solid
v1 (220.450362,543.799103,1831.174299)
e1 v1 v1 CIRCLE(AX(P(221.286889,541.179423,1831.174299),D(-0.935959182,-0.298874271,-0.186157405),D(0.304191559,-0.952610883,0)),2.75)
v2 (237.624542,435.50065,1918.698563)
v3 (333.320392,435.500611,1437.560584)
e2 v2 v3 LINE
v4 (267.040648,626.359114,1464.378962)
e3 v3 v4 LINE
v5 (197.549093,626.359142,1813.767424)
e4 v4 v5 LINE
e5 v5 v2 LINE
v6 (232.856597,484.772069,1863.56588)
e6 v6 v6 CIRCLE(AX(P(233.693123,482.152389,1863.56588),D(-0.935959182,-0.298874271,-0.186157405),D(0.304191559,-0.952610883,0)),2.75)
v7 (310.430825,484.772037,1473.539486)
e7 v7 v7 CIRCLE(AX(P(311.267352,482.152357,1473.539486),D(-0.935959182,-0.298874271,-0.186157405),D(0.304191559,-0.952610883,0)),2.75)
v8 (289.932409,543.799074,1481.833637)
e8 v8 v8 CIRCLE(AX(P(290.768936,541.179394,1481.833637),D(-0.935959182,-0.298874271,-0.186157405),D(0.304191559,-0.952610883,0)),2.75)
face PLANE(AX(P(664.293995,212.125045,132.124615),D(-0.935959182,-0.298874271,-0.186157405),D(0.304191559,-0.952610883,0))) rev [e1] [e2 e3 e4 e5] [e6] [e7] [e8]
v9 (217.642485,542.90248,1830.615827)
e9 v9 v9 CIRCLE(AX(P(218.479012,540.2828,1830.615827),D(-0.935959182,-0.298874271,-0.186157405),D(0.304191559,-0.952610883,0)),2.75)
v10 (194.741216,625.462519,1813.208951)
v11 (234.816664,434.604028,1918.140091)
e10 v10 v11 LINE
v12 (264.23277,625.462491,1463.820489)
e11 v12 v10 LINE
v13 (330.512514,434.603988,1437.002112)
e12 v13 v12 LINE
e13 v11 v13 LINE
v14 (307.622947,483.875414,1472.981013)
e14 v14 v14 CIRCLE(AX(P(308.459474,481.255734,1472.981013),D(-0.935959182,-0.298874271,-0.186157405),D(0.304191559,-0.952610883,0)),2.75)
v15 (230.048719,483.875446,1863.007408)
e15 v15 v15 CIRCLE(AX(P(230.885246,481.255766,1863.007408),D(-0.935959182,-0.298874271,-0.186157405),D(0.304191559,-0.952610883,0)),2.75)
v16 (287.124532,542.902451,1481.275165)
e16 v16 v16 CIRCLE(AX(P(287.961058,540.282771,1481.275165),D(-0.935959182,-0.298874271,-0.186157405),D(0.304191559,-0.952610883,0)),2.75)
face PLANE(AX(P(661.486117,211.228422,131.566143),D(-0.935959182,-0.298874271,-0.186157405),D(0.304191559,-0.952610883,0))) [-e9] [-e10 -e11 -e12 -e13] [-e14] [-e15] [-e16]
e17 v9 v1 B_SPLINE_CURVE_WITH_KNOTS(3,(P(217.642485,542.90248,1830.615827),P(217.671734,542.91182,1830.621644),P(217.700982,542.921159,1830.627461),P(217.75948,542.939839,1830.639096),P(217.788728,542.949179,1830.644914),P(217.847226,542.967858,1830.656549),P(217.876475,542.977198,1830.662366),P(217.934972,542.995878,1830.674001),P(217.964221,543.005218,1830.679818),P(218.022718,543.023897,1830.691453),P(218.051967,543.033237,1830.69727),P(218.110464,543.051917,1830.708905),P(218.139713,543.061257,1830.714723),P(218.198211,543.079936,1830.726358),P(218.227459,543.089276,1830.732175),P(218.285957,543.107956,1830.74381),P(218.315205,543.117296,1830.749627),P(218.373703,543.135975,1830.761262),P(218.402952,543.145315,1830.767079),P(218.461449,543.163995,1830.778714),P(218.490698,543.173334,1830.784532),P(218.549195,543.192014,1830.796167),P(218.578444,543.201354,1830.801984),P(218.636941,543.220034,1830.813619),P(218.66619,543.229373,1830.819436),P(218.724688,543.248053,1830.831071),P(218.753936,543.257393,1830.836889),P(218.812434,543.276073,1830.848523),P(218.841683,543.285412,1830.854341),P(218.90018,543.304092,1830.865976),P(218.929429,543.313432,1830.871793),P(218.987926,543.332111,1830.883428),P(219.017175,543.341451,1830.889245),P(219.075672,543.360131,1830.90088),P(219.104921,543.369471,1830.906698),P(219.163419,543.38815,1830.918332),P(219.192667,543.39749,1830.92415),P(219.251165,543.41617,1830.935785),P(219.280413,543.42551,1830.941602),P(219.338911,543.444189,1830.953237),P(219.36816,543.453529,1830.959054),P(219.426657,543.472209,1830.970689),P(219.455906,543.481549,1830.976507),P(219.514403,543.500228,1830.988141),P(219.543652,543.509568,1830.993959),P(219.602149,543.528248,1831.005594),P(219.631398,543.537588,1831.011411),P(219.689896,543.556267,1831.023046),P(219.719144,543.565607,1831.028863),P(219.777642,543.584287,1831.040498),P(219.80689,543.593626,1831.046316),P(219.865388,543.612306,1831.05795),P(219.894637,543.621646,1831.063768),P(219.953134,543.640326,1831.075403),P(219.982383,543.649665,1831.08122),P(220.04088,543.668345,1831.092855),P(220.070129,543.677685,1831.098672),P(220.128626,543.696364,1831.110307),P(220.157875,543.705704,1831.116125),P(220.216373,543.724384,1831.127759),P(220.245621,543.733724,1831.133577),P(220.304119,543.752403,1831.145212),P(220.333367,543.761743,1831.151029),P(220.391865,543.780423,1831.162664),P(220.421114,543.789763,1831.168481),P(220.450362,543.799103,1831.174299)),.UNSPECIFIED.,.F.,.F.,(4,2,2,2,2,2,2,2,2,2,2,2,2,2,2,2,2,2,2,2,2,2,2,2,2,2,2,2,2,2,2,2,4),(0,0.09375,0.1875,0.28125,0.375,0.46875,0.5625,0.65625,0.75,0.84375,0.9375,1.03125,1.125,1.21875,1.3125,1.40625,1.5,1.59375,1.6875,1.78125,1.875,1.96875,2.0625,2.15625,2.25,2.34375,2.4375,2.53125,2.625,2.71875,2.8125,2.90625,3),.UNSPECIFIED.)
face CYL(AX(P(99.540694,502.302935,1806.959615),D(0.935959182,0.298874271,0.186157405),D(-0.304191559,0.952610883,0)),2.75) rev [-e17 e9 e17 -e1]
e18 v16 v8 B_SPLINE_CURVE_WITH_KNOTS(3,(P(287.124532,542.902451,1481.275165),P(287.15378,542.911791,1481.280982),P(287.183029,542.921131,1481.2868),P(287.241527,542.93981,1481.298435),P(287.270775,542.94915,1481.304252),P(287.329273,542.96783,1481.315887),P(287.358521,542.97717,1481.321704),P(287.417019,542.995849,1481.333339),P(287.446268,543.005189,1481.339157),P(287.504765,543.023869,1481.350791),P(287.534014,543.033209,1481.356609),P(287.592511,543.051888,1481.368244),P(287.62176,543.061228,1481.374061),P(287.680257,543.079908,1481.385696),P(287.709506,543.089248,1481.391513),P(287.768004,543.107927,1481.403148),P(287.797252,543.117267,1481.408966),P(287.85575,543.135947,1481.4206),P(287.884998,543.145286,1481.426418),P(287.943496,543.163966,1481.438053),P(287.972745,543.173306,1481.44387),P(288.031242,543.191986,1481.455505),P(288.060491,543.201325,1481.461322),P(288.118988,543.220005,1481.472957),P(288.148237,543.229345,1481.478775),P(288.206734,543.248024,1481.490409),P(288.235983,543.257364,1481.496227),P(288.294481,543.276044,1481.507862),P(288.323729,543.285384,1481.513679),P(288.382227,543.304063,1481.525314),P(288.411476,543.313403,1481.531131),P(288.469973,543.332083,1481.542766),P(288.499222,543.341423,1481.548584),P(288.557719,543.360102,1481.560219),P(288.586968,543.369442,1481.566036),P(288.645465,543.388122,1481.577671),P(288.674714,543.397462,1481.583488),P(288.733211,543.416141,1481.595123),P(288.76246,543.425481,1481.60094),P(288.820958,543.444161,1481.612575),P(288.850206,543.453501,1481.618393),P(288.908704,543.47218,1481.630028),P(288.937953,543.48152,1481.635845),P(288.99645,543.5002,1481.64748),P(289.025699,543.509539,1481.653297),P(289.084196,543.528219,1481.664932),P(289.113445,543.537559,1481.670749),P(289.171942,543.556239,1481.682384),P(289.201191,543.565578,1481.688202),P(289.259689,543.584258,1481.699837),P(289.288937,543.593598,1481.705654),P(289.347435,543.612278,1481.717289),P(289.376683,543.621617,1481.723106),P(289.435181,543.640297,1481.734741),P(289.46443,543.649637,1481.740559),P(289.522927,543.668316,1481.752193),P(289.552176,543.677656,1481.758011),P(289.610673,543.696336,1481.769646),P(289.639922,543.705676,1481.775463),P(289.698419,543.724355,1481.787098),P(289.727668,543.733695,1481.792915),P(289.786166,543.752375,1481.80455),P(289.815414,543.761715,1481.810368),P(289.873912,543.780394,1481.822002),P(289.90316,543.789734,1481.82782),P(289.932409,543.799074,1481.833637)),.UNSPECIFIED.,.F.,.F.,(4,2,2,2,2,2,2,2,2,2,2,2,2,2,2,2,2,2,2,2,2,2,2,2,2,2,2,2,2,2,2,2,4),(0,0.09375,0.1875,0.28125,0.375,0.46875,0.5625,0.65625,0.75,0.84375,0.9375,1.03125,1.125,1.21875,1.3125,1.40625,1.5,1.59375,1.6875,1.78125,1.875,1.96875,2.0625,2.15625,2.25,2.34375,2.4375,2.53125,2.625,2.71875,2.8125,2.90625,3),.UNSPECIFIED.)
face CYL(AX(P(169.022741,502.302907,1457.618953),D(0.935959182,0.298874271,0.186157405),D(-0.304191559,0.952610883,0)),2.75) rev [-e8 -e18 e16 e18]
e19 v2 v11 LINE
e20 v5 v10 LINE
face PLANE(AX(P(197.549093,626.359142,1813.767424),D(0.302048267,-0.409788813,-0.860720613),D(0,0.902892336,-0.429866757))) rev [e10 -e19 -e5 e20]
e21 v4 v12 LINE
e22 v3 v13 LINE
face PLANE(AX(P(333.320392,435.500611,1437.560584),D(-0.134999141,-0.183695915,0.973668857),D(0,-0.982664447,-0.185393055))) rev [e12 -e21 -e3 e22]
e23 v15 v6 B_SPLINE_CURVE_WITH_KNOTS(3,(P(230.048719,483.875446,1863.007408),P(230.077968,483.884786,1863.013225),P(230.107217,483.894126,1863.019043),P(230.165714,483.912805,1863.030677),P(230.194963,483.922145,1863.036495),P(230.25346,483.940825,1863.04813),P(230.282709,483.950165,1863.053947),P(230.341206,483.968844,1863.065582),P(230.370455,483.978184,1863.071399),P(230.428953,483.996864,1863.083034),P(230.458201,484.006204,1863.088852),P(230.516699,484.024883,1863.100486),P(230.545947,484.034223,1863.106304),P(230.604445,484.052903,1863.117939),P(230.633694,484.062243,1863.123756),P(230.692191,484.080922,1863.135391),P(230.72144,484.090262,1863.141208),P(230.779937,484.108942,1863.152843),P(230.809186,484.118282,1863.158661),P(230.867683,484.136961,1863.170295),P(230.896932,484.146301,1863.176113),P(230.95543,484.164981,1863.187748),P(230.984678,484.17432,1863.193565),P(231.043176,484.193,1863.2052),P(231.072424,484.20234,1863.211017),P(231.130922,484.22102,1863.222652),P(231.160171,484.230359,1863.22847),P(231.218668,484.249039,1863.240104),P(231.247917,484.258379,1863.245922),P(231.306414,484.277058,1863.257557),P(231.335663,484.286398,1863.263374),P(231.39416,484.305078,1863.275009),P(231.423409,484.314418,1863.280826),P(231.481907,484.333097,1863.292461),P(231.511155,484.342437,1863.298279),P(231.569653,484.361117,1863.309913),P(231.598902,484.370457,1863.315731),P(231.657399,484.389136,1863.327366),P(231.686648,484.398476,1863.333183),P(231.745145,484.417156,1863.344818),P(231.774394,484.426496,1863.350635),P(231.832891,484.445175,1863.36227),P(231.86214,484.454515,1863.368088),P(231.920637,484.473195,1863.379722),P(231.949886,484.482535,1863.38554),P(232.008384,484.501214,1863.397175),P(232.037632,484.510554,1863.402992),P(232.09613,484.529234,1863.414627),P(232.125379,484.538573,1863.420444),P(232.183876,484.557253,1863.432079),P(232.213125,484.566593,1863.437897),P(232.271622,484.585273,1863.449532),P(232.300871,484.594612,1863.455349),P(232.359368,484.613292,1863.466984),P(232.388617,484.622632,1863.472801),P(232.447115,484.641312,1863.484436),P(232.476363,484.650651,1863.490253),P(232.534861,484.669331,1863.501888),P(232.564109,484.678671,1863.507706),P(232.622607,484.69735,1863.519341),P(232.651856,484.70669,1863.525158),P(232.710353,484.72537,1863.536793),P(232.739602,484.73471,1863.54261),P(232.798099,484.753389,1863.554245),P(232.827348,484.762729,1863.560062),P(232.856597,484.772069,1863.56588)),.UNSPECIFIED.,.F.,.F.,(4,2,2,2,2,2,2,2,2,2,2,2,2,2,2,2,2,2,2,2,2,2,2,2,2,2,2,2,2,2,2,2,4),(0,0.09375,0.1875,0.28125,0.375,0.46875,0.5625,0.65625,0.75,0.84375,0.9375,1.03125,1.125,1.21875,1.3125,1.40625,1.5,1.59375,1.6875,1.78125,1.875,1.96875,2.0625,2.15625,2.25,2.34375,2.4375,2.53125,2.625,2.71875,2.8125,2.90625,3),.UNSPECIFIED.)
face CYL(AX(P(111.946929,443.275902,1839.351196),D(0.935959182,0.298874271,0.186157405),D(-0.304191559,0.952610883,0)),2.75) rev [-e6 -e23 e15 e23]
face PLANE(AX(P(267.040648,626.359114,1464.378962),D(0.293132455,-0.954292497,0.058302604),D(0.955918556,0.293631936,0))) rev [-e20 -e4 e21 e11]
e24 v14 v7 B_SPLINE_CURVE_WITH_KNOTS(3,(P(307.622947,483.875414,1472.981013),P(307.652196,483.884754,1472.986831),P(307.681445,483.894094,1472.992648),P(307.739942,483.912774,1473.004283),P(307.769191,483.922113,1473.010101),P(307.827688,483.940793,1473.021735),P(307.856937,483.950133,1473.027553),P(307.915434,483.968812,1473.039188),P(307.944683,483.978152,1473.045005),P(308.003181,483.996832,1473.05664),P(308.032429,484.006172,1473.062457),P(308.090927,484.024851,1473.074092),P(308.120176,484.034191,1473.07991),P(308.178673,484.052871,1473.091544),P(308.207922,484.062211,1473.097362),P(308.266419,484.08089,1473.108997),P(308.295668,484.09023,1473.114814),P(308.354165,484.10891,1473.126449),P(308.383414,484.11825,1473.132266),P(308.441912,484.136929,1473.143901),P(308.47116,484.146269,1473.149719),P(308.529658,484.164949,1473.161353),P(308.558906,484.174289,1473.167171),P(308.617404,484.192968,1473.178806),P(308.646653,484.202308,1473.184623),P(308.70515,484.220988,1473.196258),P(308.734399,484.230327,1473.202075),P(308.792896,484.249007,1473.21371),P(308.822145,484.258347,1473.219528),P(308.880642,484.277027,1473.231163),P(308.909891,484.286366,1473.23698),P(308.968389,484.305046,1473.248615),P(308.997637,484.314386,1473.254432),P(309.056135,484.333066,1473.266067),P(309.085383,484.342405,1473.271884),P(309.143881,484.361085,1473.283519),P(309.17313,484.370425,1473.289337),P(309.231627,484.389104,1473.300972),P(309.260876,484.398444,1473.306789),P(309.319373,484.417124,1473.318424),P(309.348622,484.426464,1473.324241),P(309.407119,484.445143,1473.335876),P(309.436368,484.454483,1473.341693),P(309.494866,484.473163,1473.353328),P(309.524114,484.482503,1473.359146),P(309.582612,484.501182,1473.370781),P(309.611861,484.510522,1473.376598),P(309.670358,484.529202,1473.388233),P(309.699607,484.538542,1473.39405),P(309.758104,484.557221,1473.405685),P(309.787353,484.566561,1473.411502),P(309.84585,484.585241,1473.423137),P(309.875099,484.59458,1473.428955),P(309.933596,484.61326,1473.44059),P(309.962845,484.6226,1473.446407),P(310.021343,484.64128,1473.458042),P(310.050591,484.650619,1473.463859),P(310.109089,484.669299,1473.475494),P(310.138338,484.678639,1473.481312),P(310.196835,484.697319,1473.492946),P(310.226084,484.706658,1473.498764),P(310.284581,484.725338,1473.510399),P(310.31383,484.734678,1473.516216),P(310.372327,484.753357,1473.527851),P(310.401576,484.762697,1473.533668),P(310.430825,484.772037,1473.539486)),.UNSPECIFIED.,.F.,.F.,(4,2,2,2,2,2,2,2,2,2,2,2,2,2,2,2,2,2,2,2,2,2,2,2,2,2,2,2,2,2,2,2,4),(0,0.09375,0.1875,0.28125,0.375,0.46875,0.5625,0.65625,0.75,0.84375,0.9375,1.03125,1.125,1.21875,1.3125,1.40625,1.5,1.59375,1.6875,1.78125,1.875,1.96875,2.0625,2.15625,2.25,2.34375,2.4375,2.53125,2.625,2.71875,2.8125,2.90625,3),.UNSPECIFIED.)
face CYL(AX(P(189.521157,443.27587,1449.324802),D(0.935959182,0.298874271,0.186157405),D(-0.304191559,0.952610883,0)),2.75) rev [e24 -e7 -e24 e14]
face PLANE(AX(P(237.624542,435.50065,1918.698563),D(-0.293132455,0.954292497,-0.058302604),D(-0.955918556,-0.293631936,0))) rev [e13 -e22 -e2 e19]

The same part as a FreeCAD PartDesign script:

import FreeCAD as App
import Part
import Sketcher

V = App.Vector
Q = App.Units.Quantity


def add_polygon(sketch, points):
    """Adds a closed chain of lines whose ends are joined by coincident constraints."""
    first, n = sketch.GeometryCount, len(points)
    for a, b in zip(points, points[1:] + points[:1]):
        sketch.addGeometry(Part.LineSegment(App.Vector(*a, 0), App.Vector(*b, 0)), False)
    for i in range(n):
        sketch.addConstraint(Sketcher.Constraint("Coincident", first + i, 2, first + (i + 1) % n, 1))

doc = App.newDocument("Part")
body = doc.addObject("PartDesign::Body", "Body")

# Sketch on an angled plane
sketch1 = doc.addObject("Sketcher::SketchObject", "Sketch")
body.addObject(sketch1)
sketch1.Placement = App.Placement(V(661.486117, 211.228422, 131.566143), App.Rotation(V(0.17733557, 0.056627511, -0.982519934), V(-0.30419156, 0.952610883, 0), V(0.935959182, 0.298874271, 0.186157405), "ZXY"))
add_polygon(sketch1, [(-1712, 537), (-1818, 343), (-1329, 313), (-1356, 515)])  # lines 0-3
sketch1.addConstraint(Sketcher.Constraint("Parallel", 1, 3))
sketch1.addConstraint(Sketcher.Constraint("Distance", 1, Q("490.562382 mm")))
sketch1.addConstraint(Sketcher.Constraint("Distance", 3, Q("356.23219 mm")))
sketch1.addConstraint(Sketcher.Constraint("DistanceY", -1, 1, 0, 2, Q("342.579279 mm")))
sketch1.addConstraint(Sketcher.Constraint("DistanceY", -1, 1, 1, 2, Q("313.469372 mm")))
sketch1.addConstraint(Sketcher.Constraint("DistanceX", 3, 2, -1, 1, Q("1711.561009 mm")))
sketch1.addConstraint(Sketcher.Constraint("DistanceY", -1, 1, 3, 2, Q("536.583769 mm")))
sketch1.addConstraint(Sketcher.Constraint("Distance", 0, Q("221.457783 mm")))
pad1 = doc.addObject("PartDesign::Pad", "Pad")
body.addObject(pad1)
pad1.Profile = sketch1
pad1.Length = 3

# Sketch on an angled plane
sketch2 = doc.addObject("Sketcher::SketchObject", "Sketch001")
body.addObject(sketch2)
sketch2.Placement = App.Placement(V(661.486117, 211.228422, 131.566142), App.Rotation(V(0.17733557, 0.056627511, -0.982519934), V(-0.30419156, 0.952610883, 0), V(0.935959182, 0.298874271, 0.186157405), "ZXY"))
sketch2.addGeometry(Part.Circle(V(-1729.3, 448.2, 0), V(0, 0, 1), 2.8), False)
sketch2.addGeometry(Part.Circle(V(-1762.2, 388.2, 0), V(0, 0, 1), 2.8), False)
sketch2.addGeometry(Part.Circle(V(-1365.3, 364.6, 0), V(0, 0, 1), 2.8), False)
sketch2.addGeometry(Part.Circle(V(-1373.7, 427.1, 0), V(0, 0, 1), 2.8), False)
sketch2.addConstraint(Sketcher.Constraint("Equal", 0, 1))
sketch2.addConstraint(Sketcher.Constraint("Equal", 1, 2))
sketch2.addConstraint(Sketcher.Constraint("Equal", 2, 3))
sketch2.addConstraint(Sketcher.Constraint("Diameter", 0, Q("5.5 mm")))
sketch2.addConstraint(Sketcher.Constraint("DistanceX", 0, 3, 3, 3, Q("355.555801 mm")))
sketch2.addConstraint(Sketcher.Constraint("DistanceX", 0, 3, -1, 1, Q("1729.27757 mm")))
sketch2.addConstraint(Sketcher.Constraint("DistanceX", 1, 3, -1, 1, Q("1762.245432 mm")))
sketch2.addConstraint(Sketcher.Constraint("DistanceY", -1, 1, 2, 3, Q("364.618682 mm")))
sketch2.addConstraint(Sketcher.Constraint("DistanceY", 3, 3, 0, 3, Q("21.135879 mm")))
sketch2.addConstraint(Sketcher.Constraint("DistanceY", -1, 1, 0, 3, Q("448.219804 mm")))
sketch2.addConstraint(Sketcher.Constraint("DistanceY", -1, 1, 1, 3, Q("388.216138 mm")))
sketch2.addConstraint(Sketcher.Constraint("DistanceX", 2, 3, -1, 1, Q("1365.280057 mm")))
pocket1 = doc.addObject("PartDesign::Pocket", "Pocket")
body.addObject(pocket1)
pocket1.Profile = sketch2
pocket1.Type = "ThroughAll"
pocket1.Midplane = True

doc.recompute()
